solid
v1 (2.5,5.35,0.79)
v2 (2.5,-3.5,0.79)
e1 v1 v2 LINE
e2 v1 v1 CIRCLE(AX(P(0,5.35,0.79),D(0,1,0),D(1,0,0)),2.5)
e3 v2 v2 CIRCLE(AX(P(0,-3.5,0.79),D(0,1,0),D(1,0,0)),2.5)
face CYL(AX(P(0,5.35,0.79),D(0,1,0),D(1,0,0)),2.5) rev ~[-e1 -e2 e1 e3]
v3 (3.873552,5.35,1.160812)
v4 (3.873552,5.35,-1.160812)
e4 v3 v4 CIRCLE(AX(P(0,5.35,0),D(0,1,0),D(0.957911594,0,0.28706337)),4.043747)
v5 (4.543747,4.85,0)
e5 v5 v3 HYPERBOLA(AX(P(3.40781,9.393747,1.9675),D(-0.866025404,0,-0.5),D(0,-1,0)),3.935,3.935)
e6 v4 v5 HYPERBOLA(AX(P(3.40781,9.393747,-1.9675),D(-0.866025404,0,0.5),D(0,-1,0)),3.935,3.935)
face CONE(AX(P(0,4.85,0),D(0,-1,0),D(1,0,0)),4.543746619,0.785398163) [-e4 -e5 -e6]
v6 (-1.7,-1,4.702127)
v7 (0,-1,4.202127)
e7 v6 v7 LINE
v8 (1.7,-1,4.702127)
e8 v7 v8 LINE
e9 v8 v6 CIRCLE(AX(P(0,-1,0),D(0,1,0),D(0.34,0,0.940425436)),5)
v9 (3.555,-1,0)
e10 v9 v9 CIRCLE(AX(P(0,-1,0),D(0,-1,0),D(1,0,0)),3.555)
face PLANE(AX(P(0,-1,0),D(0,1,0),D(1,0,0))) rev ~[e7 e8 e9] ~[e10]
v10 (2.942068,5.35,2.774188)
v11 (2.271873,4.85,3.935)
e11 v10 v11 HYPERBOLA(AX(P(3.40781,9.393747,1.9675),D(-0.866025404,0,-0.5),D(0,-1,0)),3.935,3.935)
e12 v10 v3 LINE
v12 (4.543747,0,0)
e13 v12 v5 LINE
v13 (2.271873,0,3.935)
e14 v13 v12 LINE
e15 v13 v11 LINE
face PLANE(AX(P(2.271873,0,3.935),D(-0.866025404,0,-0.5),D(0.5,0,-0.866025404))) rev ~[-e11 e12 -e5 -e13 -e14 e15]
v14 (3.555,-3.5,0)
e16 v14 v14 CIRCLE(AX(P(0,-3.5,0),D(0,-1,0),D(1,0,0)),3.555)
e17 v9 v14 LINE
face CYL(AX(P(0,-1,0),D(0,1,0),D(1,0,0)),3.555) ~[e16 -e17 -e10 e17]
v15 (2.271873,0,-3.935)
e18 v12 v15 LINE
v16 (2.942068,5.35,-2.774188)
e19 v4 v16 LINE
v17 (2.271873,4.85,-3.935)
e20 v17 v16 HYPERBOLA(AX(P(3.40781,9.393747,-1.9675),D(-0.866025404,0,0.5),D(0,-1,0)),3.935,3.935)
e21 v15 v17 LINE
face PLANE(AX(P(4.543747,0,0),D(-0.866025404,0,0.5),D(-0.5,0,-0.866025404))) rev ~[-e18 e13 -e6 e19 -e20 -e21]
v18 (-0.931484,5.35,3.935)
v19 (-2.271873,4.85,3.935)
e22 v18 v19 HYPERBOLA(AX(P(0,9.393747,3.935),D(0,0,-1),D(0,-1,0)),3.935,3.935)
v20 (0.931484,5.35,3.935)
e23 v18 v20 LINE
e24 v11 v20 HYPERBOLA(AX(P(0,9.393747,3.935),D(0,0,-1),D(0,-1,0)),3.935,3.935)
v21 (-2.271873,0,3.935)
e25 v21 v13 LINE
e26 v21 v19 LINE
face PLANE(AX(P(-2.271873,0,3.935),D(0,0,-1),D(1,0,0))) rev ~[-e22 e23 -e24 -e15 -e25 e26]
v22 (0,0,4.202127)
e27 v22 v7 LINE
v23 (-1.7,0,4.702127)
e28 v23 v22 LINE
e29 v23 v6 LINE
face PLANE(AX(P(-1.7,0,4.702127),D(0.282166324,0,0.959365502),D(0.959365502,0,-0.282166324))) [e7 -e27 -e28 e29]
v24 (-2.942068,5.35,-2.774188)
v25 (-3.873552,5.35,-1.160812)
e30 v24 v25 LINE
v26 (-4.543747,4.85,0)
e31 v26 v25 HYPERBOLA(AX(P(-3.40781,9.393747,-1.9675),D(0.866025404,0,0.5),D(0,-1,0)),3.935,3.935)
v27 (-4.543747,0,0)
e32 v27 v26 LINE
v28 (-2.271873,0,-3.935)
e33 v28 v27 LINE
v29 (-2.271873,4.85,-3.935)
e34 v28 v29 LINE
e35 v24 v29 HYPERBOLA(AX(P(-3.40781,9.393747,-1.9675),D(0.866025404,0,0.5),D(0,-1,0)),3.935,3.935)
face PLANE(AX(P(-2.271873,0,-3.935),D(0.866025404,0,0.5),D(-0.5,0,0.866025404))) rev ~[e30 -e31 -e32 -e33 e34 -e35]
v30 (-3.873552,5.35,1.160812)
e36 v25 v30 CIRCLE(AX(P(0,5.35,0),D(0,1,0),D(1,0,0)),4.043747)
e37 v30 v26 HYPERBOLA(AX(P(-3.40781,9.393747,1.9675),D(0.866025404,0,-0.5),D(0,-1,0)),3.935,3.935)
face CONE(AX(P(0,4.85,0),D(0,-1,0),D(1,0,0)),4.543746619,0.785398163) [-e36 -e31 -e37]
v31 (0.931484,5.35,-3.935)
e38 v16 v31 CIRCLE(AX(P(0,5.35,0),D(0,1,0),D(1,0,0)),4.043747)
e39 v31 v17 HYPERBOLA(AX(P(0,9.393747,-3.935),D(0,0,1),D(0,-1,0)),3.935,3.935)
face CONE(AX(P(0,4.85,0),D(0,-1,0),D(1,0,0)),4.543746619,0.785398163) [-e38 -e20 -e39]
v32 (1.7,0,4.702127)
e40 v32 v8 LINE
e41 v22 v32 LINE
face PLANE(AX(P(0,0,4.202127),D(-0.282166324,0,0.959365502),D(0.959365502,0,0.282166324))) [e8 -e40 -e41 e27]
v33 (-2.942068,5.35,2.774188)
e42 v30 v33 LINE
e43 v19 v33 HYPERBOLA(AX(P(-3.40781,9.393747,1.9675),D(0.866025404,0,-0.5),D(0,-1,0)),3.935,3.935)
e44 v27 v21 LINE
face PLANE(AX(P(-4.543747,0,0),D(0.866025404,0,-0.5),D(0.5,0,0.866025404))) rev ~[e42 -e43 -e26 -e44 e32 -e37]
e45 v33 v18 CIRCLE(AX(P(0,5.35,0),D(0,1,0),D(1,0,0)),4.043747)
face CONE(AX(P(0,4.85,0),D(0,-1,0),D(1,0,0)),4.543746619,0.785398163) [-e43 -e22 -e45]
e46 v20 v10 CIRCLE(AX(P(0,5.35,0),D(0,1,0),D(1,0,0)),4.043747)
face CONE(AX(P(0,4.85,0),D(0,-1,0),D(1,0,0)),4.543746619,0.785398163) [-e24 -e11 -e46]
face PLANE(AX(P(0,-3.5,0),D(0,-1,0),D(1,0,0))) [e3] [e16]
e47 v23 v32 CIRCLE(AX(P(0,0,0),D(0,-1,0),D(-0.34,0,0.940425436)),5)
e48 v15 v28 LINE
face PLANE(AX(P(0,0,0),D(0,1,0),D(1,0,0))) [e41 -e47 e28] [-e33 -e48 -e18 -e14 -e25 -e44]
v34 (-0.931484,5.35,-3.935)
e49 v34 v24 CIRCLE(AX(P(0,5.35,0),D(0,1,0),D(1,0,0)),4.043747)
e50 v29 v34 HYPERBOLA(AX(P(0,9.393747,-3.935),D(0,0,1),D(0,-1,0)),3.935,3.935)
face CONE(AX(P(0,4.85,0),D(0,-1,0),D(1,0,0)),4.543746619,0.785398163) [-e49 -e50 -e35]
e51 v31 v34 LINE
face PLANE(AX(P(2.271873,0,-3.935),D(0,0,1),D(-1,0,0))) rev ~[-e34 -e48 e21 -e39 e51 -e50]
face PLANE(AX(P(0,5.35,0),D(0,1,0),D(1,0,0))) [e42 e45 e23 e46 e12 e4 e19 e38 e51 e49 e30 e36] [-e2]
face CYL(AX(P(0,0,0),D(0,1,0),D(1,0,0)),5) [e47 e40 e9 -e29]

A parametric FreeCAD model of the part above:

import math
import FreeCAD as App
import Part
import Sketcher
from FreeCAD import Vector
Q = App.Units.Quantity


def add_polygon(sketch, points):
    """Adds a closed chain of lines whose ends are joined by coincident constraints."""
    first, n = sketch.GeometryCount, len(points)
    for a, b in zip(points, points[1:] + points[:1]):
        sketch.addGeometry(Part.LineSegment(App.Vector(*a, 0), App.Vector(*b, 0)), False)
    for i in range(n):
        sketch.addConstraint(Sketcher.Constraint("Coincident", first + i, 2, first + (i + 1) % n, 1))

doc = App.newDocument("Part")
params = doc.addObject("Spreadsheet::Sheet", "Params")
for row, (alias, value) in enumerate([
    ("pad1_length", "5.35 mm"),
    ("sketch2_diameter", "10 mm"),
    ("pad2_length", "1 mm"),
    ("sketch3_diameter", "7.11 mm"),
    ("pad3_length", "2.5 mm"),
    ("sketch4_diameter", "5 mm"),
    ("sketch5_radius", "5 mm"),
    ("sketch6_width", "0.5 mm"),
    ("groove_angle", "360 deg"),
], start=1):
    params.set(f"A{row}", alias)
    params.set(f"B{row}", "=" + value)
    params.setAlias(f"B{row}", alias)

body = doc.addObject("PartDesign::Body", "Body")

sketch1 = doc.addObject("Sketcher::SketchObject", "Sketch")
body.addObject(sketch1)
sketch1.AttachmentSupport = (doc.XZ_Plane, [""])
sketch1.MapMode = "FlatFace"
add_polygon(sketch1, [(4.5, 0), (2.3, -3.9), (-2.3, -3.9), (-4.5, 0), (-2.3, 3.9), (2.3, 3.9)])
sketch1.addConstraint(Sketcher.Constraint("Horizontal", 1))
sketch1.addConstraint(Sketcher.Constraint("Horizontal", 4))
sketch1.addConstraint(Sketcher.Constraint("Symmetric", 0, 2, 3, 2, -1, 1))
sketch1.addConstraint(Sketcher.Constraint("Symmetric", 2, 2, 5, 2, -1, 1))
sketch1.addConstraint(Sketcher.Constraint("PointOnObject", 2, 2, -1))
sketch1.addConstraint(Sketcher.Constraint("Parallel", 2, 5))
sketch1.addConstraint(Sketcher.Constraint("Vertical", 1, 2, 3, 2))
sketch1.addConstraint(Sketcher.Constraint("Angle", 0, Q("-120 deg")))
sketch1.addConstraint(Sketcher.Constraint("DistanceY", 1, 2, 3, 2, Q("7.87 mm")))
sketch1.addConstraint(Sketcher.Constraint("DistanceX", 1, 2, 1, 1, Q("4.543747 mm")))
pad1 = doc.addObject("PartDesign::Pad", "Pad")
body.addObject(pad1)
pad1.Profile = sketch1
pad1.setExpression("Length", "Params.pad1_length")
pad1.Reversed = True

sketch2 = doc.addObject("Sketcher::SketchObject", "Sketch001")
body.addObject(sketch2)
sketch2.AttachmentSupport = (doc.XZ_Plane, [""])
sketch2.MapMode = "FlatFace"
sketch2.addGeometry(Part.Circle(Vector(0, 0, 0), Vector(0, 0, 1), 5), False)
sketch2.addConstraint(Sketcher.Constraint("Coincident", 0, 3, -1, 1))
sketch2.addConstraint(Sketcher.Constraint("Diameter", 0, Q("10 mm")))
sketch2.setExpression("Constraints[1]", "Params.sketch2_diameter")
pad2 = doc.addObject("PartDesign::Pad", "Pad001")
body.addObject(pad2)
pad2.Profile = sketch2
pad2.setExpression("Length", "Params.pad2_length")

sketch3 = doc.addObject("Sketcher::SketchObject", "Sketch002")
body.addObject(sketch3)
sketch3.AttachmentSupport = (doc.XZ_Plane, [""])
sketch3.MapMode = "FlatFace"
sketch3.AttachmentOffset = App.Placement(Vector(0, 0, 1), App.Rotation())
sketch3.addGeometry(Part.Circle(Vector(0, 0, 0), Vector(0, 0, 1), 3.6), False)
sketch3.addConstraint(Sketcher.Constraint("Coincident", 0, 3, -1, 1))
sketch3.addConstraint(Sketcher.Constraint("Diameter", 0, Q("7.11 mm")))
sketch3.setExpression("Constraints[1]", "Params.sketch3_diameter")
pad3 = doc.addObject("PartDesign::Pad", "Pad002")
body.addObject(pad3)
pad3.Profile = sketch3
pad3.setExpression("Length", "Params.pad3_length")

sketch4 = doc.addObject("Sketcher::SketchObject", "Sketch003")
body.addObject(sketch4)
sketch4.AttachmentSupport = (doc.XZ_Plane, [""])
sketch4.MapMode = "FlatFace"
sketch4.AttachmentOffset = App.Placement(Vector(0, 0, -5.35), App.Rotation())
sketch4.addGeometry(Part.Circle(Vector(0, 0.8, 0), Vector(0, 0, 1), 2.5), False)
sketch4.addConstraint(Sketcher.Constraint("PointOnObject", 0, 3, -2))
sketch4.addConstraint(Sketcher.Constraint("Diameter", 0, Q("5 mm")))
sketch4.addConstraint(Sketcher.Constraint("DistanceY", -1, 1, 0, 3, Q("0.79 mm")))
sketch4.setExpression("Constraints[1]", "Params.sketch4_diameter")
pocket1 = doc.addObject("PartDesign::Pocket", "Pocket")
body.addObject(pocket1)
pocket1.Profile = sketch4
pocket1.Type = "ThroughAll"
pocket1.Reversed = True

sketch5 = doc.addObject("Sketcher::SketchObject", "Sketch004")
body.addObject(sketch5)
sketch5.AttachmentSupport = (doc.XZ_Plane, [""])
sketch5.MapMode = "FlatFace"
sketch5.addGeometry(Part.LineSegment(Vector(0, 4.2, 0), Vector(-1.7, 4.7, 0)), False)
sketch5.addGeometry(Part.ArcOfCircle(Part.Circle(Vector(0, 0, 0), Vector(0, 0, 1), 5), math.radians(70), math.radians(110)), False)
sketch5.addGeometry(Part.LineSegment(Vector(1.7, 4.7, 0), Vector(0, 4.2, 0)), False)
sketch5.addConstraint(Sketcher.Constraint("Coincident", 0, 2, 1, 2))
sketch5.addConstraint(Sketcher.Constraint("Coincident", 1, 1, 2, 1))
sketch5.addConstraint(Sketcher.Constraint("Coincident", 2, 2, 0, 1))
sketch5.addConstraint(Sketcher.Constraint("Coincident", 1, 3, -1, 1))
sketch5.addConstraint(Sketcher.Constraint("PointOnObject", 2, 2, -2))
sketch5.addConstraint(Sketcher.Constraint("Horizontal", 0, 2, 1, 1))
sketch5.addConstraint(Sketcher.Constraint("Radius", 1, Q("5 mm")))
sketch5.addConstraint(Sketcher.Constraint("DistanceX", 0, 2, -1, 1, Q("1.7 mm")))
sketch5.addConstraint(Sketcher.Constraint("DistanceY", 2, 2, 0, 2, Q("0.5 mm")))
sketch5.setExpression("Constraints[6]", "Params.sketch5_radius")
pocket2 = doc.addObject("PartDesign::Pocket", "Pocket001")
body.addObject(pocket2)
pocket2.Profile = sketch5
pocket2.Type = "ThroughAll"
pocket2.Reversed = True

sketch6 = doc.addObject("Sketcher::SketchObject", "Sketch005")
body.addObject(sketch6)
sketch6.AttachmentSupport = (doc.XY_Plane, [""])
sketch6.MapMode = "FlatFace"
add_polygon(sketch6, [(4.5, 5.3), (4, 5.3), (4.5, 4.8)])
sketch6.addConstraint(Sketcher.Constraint("Horizontal", 0))
sketch6.addConstraint(Sketcher.Constraint("Vertical", 2))
sketch6.addConstraint(Sketcher.Constraint("Equal", 0, 2))
sketch6.addConstraint(Sketcher.Constraint("DistanceX", 0, 2, 0, 1, Q("0.5 mm")))
sketch6.addConstraint(Sketcher.Constraint("DistanceY", -1, 1, 0, 2, Q("5.35 mm")))
sketch6.addConstraint(Sketcher.Constraint("DistanceX", -1, 1, 0, 2, Q("4.043747 mm")))
sketch6.setExpression("Constraints[6]", "Params.sketch6_width")
groove = doc.addObject("PartDesign::Groove", "Groove")
body.addObject(groove)
groove.Profile = sketch6
groove.ReferenceAxis = (sketch6, ["V_Axis"])
groove.setExpression("Angle", "Params.groove_angle")

doc.recompute()
